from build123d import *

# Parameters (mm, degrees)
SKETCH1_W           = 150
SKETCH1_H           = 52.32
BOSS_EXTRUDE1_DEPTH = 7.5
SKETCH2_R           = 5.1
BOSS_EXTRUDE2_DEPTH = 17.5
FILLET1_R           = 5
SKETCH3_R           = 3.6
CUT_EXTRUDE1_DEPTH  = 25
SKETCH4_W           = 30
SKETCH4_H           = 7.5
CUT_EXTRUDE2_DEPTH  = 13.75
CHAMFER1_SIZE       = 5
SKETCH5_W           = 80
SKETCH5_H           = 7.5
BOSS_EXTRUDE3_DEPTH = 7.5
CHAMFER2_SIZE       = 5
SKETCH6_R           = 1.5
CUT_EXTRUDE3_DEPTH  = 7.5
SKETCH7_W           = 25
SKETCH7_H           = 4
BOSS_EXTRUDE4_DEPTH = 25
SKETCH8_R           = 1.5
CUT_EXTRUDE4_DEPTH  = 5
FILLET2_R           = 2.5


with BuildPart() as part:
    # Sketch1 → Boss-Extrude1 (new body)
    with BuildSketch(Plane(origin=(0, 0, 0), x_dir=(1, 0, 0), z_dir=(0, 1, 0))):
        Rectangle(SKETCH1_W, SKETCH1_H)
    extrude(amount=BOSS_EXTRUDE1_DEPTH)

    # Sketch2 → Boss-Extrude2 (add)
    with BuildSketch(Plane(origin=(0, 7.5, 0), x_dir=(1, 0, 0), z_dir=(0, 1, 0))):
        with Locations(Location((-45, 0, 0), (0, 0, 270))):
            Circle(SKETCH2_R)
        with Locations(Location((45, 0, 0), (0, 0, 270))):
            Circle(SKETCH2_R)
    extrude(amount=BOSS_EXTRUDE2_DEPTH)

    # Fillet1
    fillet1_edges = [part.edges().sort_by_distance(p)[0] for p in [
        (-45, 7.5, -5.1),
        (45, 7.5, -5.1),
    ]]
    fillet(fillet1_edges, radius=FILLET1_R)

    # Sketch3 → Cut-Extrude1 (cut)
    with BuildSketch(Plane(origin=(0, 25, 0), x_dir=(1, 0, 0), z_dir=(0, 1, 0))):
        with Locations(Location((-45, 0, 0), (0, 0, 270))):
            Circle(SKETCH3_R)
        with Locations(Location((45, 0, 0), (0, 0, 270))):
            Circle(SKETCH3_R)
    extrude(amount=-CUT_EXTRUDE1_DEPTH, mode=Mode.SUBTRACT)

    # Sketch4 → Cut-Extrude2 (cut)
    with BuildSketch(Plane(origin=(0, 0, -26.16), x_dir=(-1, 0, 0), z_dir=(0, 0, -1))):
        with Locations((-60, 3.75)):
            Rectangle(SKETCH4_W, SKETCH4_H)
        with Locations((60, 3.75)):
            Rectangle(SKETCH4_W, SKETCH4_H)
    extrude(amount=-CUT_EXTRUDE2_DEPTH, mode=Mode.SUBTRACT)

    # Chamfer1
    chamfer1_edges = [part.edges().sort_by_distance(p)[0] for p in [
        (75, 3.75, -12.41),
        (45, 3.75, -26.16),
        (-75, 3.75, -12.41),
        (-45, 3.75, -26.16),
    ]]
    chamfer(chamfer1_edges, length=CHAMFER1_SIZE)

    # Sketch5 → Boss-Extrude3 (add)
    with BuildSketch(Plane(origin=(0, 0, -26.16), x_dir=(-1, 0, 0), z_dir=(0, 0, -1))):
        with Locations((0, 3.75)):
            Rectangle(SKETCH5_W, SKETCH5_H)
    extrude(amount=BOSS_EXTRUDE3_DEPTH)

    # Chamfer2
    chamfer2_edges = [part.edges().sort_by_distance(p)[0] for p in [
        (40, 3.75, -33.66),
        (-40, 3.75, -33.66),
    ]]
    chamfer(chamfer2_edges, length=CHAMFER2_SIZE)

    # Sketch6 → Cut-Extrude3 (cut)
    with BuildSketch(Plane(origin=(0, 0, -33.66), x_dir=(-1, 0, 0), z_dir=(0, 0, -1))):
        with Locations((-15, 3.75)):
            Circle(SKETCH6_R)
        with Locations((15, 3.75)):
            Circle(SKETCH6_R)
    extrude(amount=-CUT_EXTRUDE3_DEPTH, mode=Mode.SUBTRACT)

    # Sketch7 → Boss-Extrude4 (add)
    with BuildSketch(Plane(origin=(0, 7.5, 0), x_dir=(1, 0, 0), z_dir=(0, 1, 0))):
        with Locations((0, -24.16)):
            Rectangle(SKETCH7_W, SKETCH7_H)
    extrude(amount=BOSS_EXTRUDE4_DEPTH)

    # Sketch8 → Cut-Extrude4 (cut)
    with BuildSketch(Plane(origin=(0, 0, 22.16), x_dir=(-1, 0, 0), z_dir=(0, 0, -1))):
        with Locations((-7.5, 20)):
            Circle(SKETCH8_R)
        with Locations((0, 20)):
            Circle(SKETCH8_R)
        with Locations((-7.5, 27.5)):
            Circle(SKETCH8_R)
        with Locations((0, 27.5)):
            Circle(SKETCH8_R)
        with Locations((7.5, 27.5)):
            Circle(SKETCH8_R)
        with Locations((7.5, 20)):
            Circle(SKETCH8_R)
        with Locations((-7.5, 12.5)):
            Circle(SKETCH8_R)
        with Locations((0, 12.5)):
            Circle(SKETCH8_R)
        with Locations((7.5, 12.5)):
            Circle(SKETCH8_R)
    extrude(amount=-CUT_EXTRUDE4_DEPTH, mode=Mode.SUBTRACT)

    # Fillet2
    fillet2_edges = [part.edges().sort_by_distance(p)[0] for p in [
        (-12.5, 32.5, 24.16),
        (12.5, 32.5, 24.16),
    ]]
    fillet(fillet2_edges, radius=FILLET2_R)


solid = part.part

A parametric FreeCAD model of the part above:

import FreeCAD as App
import Part
import Sketcher
from FreeCAD import Vector
Q = App.Units.Quantity


def edges_at(feature, points):
    """Names of the edges that pass closest to the given points."""
    edges = feature.Shape.Edges
    near = lambda p: min(range(len(edges)), key=lambda i: edges[i].distToShape(Part.Vertex(*p))[0])
    return sorted({f"Edge{near(p) + 1}" for p in points})


def add_polygon(sketch, points):
    """Adds a closed chain of lines whose ends are joined by coincident constraints."""
    first, n = sketch.GeometryCount, len(points)
    for a, b in zip(points, points[1:] + points[:1]):
        sketch.addGeometry(Part.LineSegment(App.Vector(*a, 0), App.Vector(*b, 0)), False)
    for i in range(n):
        sketch.addConstraint(Sketcher.Constraint("Coincident", first + i, 2, first + (i + 1) % n, 1))

doc = App.newDocument("Part")
body = doc.addObject("PartDesign::Body", "Body")

sketch1 = doc.addObject("Sketcher::SketchObject", "Sketch")
body.addObject(sketch1)
sketch1.AttachmentSupport = (doc.XZ_Plane, [""])
sketch1.MapMode = "FlatFace"
add_polygon(sketch1, [(-75, -26), (-75, 26), (75, 26), (75, -26)])
sketch1.addConstraint(Sketcher.Constraint("Vertical", 0))
sketch1.addConstraint(Sketcher.Constraint("Horizontal", 1))
sketch1.addConstraint(Sketcher.Constraint("Vertical", 2))
sketch1.addConstraint(Sketcher.Constraint("Horizontal", 3))
sketch1.addConstraint(Sketcher.Constraint("Symmetric", 0, 2, 2, 2, -1, 1))
sketch1.addConstraint(Sketcher.Constraint("DistanceX", 1, 1, 1, 2, Q("150 mm")))
sketch1.addConstraint(Sketcher.Constraint("DistanceY", 0, 1, 0, 2, Q("52.32 mm")))
pad1 = doc.addObject("PartDesign::Pad", "Pad")
body.addObject(pad1)
pad1.Profile = sketch1
pad1.Length = 7.5
pad1.Reversed = True

sketch2 = doc.addObject("Sketcher::SketchObject", "Sketch001")
body.addObject(sketch2)
sketch2.AttachmentSupport = (doc.XZ_Plane, [""])
sketch2.MapMode = "FlatFace"
sketch2.AttachmentOffset = App.Placement(Vector(0, 0, -7.5), App.Rotation())
sketch2.addGeometry(Part.Circle(Vector(-45, 0, 0), Vector(0, 0, 1), 5), False)
sketch2.addGeometry(Part.Circle(Vector(45, 0, 0), Vector(0, 0, 1), 5), False)
sketch2.addConstraint(Sketcher.Constraint("Equal", 0, 1))
sketch2.addConstraint(Sketcher.Constraint("Symmetric", 0, 3, 1, 3, -1, 1))
sketch2.addConstraint(Sketcher.Constraint("PointOnObject", 0, 3, -1))
sketch2.addConstraint(Sketcher.Constraint("Diameter", 0, Q("10.2 mm")))
sketch2.addConstraint(Sketcher.Constraint("DistanceX", 0, 3, -1, 1, Q("45 mm")))
pad2 = doc.addObject("PartDesign::Pad", "Pad001")
body.addObject(pad2)
pad2.Profile = sketch2
pad2.Length = 17.5
pad2.Reversed = True
doc.recompute()

fillet = doc.addObject("PartDesign::Fillet", "Fillet")
body.addObject(fillet)
fillet.Base = (pad2, edges_at(pad2, [(-45, 7.5, -5.1), (45, 7.5, -5.1)]))
fillet.Radius = 5

sketch3 = doc.addObject("Sketcher::SketchObject", "Sketch002")
body.addObject(sketch3)
sketch3.AttachmentSupport = (doc.XZ_Plane, [""])
sketch3.MapMode = "FlatFace"
sketch3.AttachmentOffset = App.Placement(Vector(0, 0, -25), App.Rotation())
sketch3.addGeometry(Part.Circle(Vector(-45, 0, 0), Vector(0, 0, 1), 3.6), False)
sketch3.addGeometry(Part.Circle(Vector(45, 0, 0), Vector(0, 0, 1), 3.6), False)
sketch3.addConstraint(Sketcher.Constraint("Equal", 0, 1))
sketch3.addConstraint(Sketcher.Constraint("Symmetric", 0, 3, 1, 3, -1, 1))
sketch3.addConstraint(Sketcher.Constraint("PointOnObject", 0, 3, -1))
sketch3.addConstraint(Sketcher.Constraint("Diameter", 0, Q("7.2 mm")))
sketch3.addConstraint(Sketcher.Constraint("DistanceX", 0, 3, -1, 1, Q("45 mm")))
pocket1 = doc.addObject("PartDesign::Pocket", "Pocket")
body.addObject(pocket1)
pocket1.Profile = sketch3
pocket1.Length = 25
pocket1.Reversed = True

sketch4 = doc.addObject("Sketcher::SketchObject", "Sketch003")
body.addObject(sketch4)
sketch4.AttachmentSupport = (doc.XY_Plane, [""])
sketch4.MapMode = "FlatFace"
sketch4.AttachmentOffset = App.Placement(Vector(0, 0, -26.16), App.Rotation())
add_polygon(sketch4, [(75, 8), (75, 0), (45, 0), (45, 8)])
add_polygon(sketch4, [(-45, 8), (-45, 0), (-75, 0), (-75, 8)])
sketch4.addConstraint(Sketcher.Constraint("Vertical", 0))
sketch4.addConstraint(Sketcher.Constraint("Horizontal", 1))
sketch4.addConstraint(Sketcher.Constraint("Vertical", 2))
sketch4.addConstraint(Sketcher.Constraint("Horizontal", 3))
sketch4.addConstraint(Sketcher.Constraint("Vertical", 4))
sketch4.addConstraint(Sketcher.Constraint("Horizontal", 5))
sketch4.addConstraint(Sketcher.Constraint("Vertical", 6))
sketch4.addConstraint(Sketcher.Constraint("Horizontal", 7))
sketch4.addConstraint(Sketcher.Constraint("Symmetric", 1, 2, 4, 2, -1, 1))
sketch4.addConstraint(Sketcher.Constraint("Symmetric", 0, 2, 5, 2, -2))
sketch4.addConstraint(Sketcher.Constraint("Horizontal", 3, 2, 6, 2))
sketch4.addConstraint(Sketcher.Constraint("DistanceX", 1, 2, 1, 1, Q("30 mm")))
sketch4.addConstraint(Sketcher.Constraint("DistanceY", 0, 2, 0, 1, Q("7.5 mm")))
sketch4.addConstraint(Sketcher.Constraint("DistanceX", -1, 1, 0, 2, Q("75 mm")))
pocket2 = doc.addObject("PartDesign::Pocket", "Pocket001")
body.addObject(pocket2)
pocket2.Profile = sketch4
pocket2.Length = 13.75
pocket2.Reversed = True
doc.recompute()

chamfer = doc.addObject("PartDesign::Chamfer", "Chamfer")
body.addObject(chamfer)
chamfer.Base = (pocket2, edges_at(pocket2, [
    (75, 3.75, -12.41),
    (45, 3.75, -26.16),
    (-75, 3.75, -12.41),
    (-45, 3.75, -26.16),
]))
chamfer.Size = 5

sketch5 = doc.addObject("Sketcher::SketchObject", "Sketch004")
body.addObject(sketch5)
sketch5.AttachmentSupport = (doc.XY_Plane, [""])
sketch5.MapMode = "FlatFace"
sketch5.AttachmentOffset = App.Placement(Vector(0, 0, -26.16), App.Rotation())
add_polygon(sketch5, [(40, 8), (40, 0), (-40, 0), (-40, 8)])
sketch5.addConstraint(Sketcher.Constraint("Vertical", 0))
sketch5.addConstraint(Sketcher.Constraint("Horizontal", 1))
sketch5.addConstraint(Sketcher.Constraint("Vertical", 2))
sketch5.addConstraint(Sketcher.Constraint("Horizontal", 3))
sketch5.addConstraint(Sketcher.Constraint("Symmetric", 0, 2, 1, 2, -1, 1))
sketch5.addConstraint(Sketcher.Constraint("DistanceX", 1, 2, 1, 1, Q("80 mm")))
sketch5.addConstraint(Sketcher.Constraint("DistanceY", 0, 2, 0, 1, Q("7.5 mm")))
pad3 = doc.addObject("PartDesign::Pad", "Pad002")
body.addObject(pad3)
pad3.Profile = sketch5
pad3.Length = 7.5
pad3.Reversed = True
doc.recompute()

chamfer2 = doc.addObject("PartDesign::Chamfer", "Chamfer001")
body.addObject(chamfer2)
chamfer2.Base = (pad3, edges_at(pad3, [(40, 3.75, -33.66), (-40, 3.75, -33.66)]))
chamfer2.Size = 5

sketch6 = doc.addObject("Sketcher::SketchObject", "Sketch005")
body.addObject(sketch6)
sketch6.AttachmentSupport = (doc.XY_Plane, [""])
sketch6.MapMode = "FlatFace"
sketch6.AttachmentOffset = App.Placement(Vector(0, 0, -33.66), App.Rotation())
sketch6.addGeometry(Part.Circle(Vector(15, 3.8, 0), Vector(0, 0, 1), 1.5), False)
sketch6.addGeometry(Part.Circle(Vector(-15, 3.8, 0), Vector(0, 0, 1), 1.5), False)
sketch6.addConstraint(Sketcher.Constraint("Equal", 0, 1))
sketch6.addConstraint(Sketcher.Constraint("Symmetric", 0, 3, 1, 3, -2))
sketch6.addConstraint(Sketcher.Constraint("Diameter", 0, Q("3 mm")))
sketch6.addConstraint(Sketcher.Constraint("DistanceX", -1, 1, 0, 3, Q("15 mm")))
sketch6.addConstraint(Sketcher.Constraint("DistanceY", -1, 1, 0, 3, Q("3.75 mm")))
pocket3 = doc.addObject("PartDesign::Pocket", "Pocket002")
body.addObject(pocket3)
pocket3.Profile = sketch6
pocket3.Length = 7.5
pocket3.Reversed = True

sketch7 = doc.addObject("Sketcher::SketchObject", "Sketch006")
body.addObject(sketch7)
sketch7.AttachmentSupport = (doc.XZ_Plane, [""])
sketch7.MapMode = "FlatFace"
sketch7.AttachmentOffset = App.Placement(Vector(0, 0, -7.5), App.Rotation())
add_polygon(sketch7, [(-12.5, 22.2), (-12.5, 26.2), (12.5, 26.2), (12.5, 22.2)])
sketch7.addConstraint(Sketcher.Constraint("Vertical", 0))
sketch7.addConstraint(Sketcher.Constraint("Horizontal", 1))
sketch7.addConstraint(Sketcher.Constraint("Vertical", 2))
sketch7.addConstraint(Sketcher.Constraint("Horizontal", 3))
sketch7.addConstraint(Sketcher.Constraint("DistanceX", 1, 1, 1, 2, Q("25 mm")))
sketch7.addConstraint(Sketcher.Constraint("DistanceY", 0, 1, 0, 2, Q("4 mm")))
sketch7.addConstraint(Sketcher.Constraint("DistanceX", 0, 2, -1, 1, Q("12.5 mm")))
sketch7.addConstraint(Sketcher.Constraint("DistanceY", -1, 1, 0, 2, Q("26.16 mm")))
pad4 = doc.addObject("PartDesign::Pad", "Pad003")
body.addObject(pad4)
pad4.Profile = sketch7
pad4.Length = 25
pad4.Reversed = True

sketch8 = doc.addObject("Sketcher::SketchObject", "Sketch007")
body.addObject(sketch8)
sketch8.AttachmentSupport = (doc.XY_Plane, [""])
sketch8.MapMode = "FlatFace"
sketch8.AttachmentOffset = App.Placement(Vector(0, 0, 22.16), App.Rotation())
sketch8.addGeometry(Part.Circle(Vector(7.5, 20, 0), Vector(0, 0, 1), 1.5), False)
sketch8.addGeometry(Part.Circle(Vector(0, 20, 0), Vector(0, 0, 1), 1.5), False)
sketch8.addGeometry(Part.Circle(Vector(7.5, 27.5, 0), Vector(0, 0, 1), 1.5), False)
sketch8.addGeometry(Part.Circle(Vector(0, 27.5, 0), Vector(0, 0, 1), 1.5), False)
sketch8.addGeometry(Part.Circle(Vector(-7.5, 27.5, 0), Vector(0, 0, 1), 1.5), False)
sketch8.addGeometry(Part.Circle(Vector(-7.5, 20, 0), Vector(0, 0, 1), 1.5), False)
sketch8.addGeometry(Part.Circle(Vector(7.5, 12.5, 0), Vector(0, 0, 1), 1.5), False)
sketch8.addGeometry(Part.Circle(Vector(0, 12.5, 0), Vector(0, 0, 1), 1.5), False)
sketch8.addGeometry(Part.Circle(Vector(-7.5, 12.5, 0), Vector(0, 0, 1), 1.5), False)
sketch8.addConstraint(Sketcher.Constraint("Equal", 0, 1))
sketch8.addConstraint(Sketcher.Constraint("Equal", 1, 2))
sketch8.addConstraint(Sketcher.Constraint("Equal", 2, 3))
sketch8.addConstraint(Sketcher.Constraint("Equal", 3, 4))
sketch8.addConstraint(Sketcher.Constraint("Equal", 4, 5))
sketch8.addConstraint(Sketcher.Constraint("Equal", 5, 6))
sketch8.addConstraint(Sketcher.Constraint("Equal", 6, 7))
sketch8.addConstraint(Sketcher.Constraint("Equal", 7, 8))
sketch8.addConstraint(Sketcher.Constraint("Symmetric", 2, 3, 4, 3, -2))
sketch8.addConstraint(Sketcher.Constraint("Symmetric", 0, 3, 5, 3, -2))
sketch8.addConstraint(Sketcher.Constraint("Symmetric", 6, 3, 8, 3, -2))
sketch8.addConstraint(Sketcher.Constraint("PointOnObject", 1, 3, -2))
sketch8.addConstraint(Sketcher.Constraint("PointOnObject", 3, 3, -2))
sketch8.addConstraint(Sketcher.Constraint("PointOnObject", 7, 3, -2))
sketch8.addConstraint(Sketcher.Constraint("Horizontal", 0, 3, 1, 3))
sketch8.addConstraint(Sketcher.Constraint("Horizontal", 2, 3, 3, 3))
sketch8.addConstraint(Sketcher.Constraint("Horizontal", 6, 3, 7, 3))
sketch8.addConstraint(Sketcher.Constraint("Vertical", 0, 3, 2, 3))
sketch8.addConstraint(Sketcher.Constraint("Vertical", 2, 3, 6, 3))
sketch8.addConstraint(Sketcher.Constraint("Diameter", 0, Q("3 mm")))
sketch8.addConstraint(Sketcher.Constraint("DistanceY", -1, 1, 0, 3, Q("20 mm")))
sketch8.addConstraint(Sketcher.Constraint("DistanceX", 4, 3, 2, 3, Q("15 mm")))
sketch8.addConstraint(Sketcher.Constraint("DistanceY", 6, 3, 2, 3, Q("15 mm")))
sketch8.addConstraint(Sketcher.Constraint("DistanceY", -1, 1, 2, 3, Q("27.5 mm")))
pocket4 = doc.addObject("PartDesign::Pocket", "Pocket003")
body.addObject(pocket4)
pocket4.Profile = sketch8
pocket4.Length = 5
pocket4.Reversed = True
doc.recompute()

fillet2 = doc.addObject("PartDesign::Fillet", "Fillet001")
body.addObject(fillet2)
fillet2.Base = (pocket4, edges_at(pocket4, [(-12.5, 32.5, 24.16), (12.5, 32.5, 24.16)]))
fillet2.Radius = 2.5

doc.recompute()
